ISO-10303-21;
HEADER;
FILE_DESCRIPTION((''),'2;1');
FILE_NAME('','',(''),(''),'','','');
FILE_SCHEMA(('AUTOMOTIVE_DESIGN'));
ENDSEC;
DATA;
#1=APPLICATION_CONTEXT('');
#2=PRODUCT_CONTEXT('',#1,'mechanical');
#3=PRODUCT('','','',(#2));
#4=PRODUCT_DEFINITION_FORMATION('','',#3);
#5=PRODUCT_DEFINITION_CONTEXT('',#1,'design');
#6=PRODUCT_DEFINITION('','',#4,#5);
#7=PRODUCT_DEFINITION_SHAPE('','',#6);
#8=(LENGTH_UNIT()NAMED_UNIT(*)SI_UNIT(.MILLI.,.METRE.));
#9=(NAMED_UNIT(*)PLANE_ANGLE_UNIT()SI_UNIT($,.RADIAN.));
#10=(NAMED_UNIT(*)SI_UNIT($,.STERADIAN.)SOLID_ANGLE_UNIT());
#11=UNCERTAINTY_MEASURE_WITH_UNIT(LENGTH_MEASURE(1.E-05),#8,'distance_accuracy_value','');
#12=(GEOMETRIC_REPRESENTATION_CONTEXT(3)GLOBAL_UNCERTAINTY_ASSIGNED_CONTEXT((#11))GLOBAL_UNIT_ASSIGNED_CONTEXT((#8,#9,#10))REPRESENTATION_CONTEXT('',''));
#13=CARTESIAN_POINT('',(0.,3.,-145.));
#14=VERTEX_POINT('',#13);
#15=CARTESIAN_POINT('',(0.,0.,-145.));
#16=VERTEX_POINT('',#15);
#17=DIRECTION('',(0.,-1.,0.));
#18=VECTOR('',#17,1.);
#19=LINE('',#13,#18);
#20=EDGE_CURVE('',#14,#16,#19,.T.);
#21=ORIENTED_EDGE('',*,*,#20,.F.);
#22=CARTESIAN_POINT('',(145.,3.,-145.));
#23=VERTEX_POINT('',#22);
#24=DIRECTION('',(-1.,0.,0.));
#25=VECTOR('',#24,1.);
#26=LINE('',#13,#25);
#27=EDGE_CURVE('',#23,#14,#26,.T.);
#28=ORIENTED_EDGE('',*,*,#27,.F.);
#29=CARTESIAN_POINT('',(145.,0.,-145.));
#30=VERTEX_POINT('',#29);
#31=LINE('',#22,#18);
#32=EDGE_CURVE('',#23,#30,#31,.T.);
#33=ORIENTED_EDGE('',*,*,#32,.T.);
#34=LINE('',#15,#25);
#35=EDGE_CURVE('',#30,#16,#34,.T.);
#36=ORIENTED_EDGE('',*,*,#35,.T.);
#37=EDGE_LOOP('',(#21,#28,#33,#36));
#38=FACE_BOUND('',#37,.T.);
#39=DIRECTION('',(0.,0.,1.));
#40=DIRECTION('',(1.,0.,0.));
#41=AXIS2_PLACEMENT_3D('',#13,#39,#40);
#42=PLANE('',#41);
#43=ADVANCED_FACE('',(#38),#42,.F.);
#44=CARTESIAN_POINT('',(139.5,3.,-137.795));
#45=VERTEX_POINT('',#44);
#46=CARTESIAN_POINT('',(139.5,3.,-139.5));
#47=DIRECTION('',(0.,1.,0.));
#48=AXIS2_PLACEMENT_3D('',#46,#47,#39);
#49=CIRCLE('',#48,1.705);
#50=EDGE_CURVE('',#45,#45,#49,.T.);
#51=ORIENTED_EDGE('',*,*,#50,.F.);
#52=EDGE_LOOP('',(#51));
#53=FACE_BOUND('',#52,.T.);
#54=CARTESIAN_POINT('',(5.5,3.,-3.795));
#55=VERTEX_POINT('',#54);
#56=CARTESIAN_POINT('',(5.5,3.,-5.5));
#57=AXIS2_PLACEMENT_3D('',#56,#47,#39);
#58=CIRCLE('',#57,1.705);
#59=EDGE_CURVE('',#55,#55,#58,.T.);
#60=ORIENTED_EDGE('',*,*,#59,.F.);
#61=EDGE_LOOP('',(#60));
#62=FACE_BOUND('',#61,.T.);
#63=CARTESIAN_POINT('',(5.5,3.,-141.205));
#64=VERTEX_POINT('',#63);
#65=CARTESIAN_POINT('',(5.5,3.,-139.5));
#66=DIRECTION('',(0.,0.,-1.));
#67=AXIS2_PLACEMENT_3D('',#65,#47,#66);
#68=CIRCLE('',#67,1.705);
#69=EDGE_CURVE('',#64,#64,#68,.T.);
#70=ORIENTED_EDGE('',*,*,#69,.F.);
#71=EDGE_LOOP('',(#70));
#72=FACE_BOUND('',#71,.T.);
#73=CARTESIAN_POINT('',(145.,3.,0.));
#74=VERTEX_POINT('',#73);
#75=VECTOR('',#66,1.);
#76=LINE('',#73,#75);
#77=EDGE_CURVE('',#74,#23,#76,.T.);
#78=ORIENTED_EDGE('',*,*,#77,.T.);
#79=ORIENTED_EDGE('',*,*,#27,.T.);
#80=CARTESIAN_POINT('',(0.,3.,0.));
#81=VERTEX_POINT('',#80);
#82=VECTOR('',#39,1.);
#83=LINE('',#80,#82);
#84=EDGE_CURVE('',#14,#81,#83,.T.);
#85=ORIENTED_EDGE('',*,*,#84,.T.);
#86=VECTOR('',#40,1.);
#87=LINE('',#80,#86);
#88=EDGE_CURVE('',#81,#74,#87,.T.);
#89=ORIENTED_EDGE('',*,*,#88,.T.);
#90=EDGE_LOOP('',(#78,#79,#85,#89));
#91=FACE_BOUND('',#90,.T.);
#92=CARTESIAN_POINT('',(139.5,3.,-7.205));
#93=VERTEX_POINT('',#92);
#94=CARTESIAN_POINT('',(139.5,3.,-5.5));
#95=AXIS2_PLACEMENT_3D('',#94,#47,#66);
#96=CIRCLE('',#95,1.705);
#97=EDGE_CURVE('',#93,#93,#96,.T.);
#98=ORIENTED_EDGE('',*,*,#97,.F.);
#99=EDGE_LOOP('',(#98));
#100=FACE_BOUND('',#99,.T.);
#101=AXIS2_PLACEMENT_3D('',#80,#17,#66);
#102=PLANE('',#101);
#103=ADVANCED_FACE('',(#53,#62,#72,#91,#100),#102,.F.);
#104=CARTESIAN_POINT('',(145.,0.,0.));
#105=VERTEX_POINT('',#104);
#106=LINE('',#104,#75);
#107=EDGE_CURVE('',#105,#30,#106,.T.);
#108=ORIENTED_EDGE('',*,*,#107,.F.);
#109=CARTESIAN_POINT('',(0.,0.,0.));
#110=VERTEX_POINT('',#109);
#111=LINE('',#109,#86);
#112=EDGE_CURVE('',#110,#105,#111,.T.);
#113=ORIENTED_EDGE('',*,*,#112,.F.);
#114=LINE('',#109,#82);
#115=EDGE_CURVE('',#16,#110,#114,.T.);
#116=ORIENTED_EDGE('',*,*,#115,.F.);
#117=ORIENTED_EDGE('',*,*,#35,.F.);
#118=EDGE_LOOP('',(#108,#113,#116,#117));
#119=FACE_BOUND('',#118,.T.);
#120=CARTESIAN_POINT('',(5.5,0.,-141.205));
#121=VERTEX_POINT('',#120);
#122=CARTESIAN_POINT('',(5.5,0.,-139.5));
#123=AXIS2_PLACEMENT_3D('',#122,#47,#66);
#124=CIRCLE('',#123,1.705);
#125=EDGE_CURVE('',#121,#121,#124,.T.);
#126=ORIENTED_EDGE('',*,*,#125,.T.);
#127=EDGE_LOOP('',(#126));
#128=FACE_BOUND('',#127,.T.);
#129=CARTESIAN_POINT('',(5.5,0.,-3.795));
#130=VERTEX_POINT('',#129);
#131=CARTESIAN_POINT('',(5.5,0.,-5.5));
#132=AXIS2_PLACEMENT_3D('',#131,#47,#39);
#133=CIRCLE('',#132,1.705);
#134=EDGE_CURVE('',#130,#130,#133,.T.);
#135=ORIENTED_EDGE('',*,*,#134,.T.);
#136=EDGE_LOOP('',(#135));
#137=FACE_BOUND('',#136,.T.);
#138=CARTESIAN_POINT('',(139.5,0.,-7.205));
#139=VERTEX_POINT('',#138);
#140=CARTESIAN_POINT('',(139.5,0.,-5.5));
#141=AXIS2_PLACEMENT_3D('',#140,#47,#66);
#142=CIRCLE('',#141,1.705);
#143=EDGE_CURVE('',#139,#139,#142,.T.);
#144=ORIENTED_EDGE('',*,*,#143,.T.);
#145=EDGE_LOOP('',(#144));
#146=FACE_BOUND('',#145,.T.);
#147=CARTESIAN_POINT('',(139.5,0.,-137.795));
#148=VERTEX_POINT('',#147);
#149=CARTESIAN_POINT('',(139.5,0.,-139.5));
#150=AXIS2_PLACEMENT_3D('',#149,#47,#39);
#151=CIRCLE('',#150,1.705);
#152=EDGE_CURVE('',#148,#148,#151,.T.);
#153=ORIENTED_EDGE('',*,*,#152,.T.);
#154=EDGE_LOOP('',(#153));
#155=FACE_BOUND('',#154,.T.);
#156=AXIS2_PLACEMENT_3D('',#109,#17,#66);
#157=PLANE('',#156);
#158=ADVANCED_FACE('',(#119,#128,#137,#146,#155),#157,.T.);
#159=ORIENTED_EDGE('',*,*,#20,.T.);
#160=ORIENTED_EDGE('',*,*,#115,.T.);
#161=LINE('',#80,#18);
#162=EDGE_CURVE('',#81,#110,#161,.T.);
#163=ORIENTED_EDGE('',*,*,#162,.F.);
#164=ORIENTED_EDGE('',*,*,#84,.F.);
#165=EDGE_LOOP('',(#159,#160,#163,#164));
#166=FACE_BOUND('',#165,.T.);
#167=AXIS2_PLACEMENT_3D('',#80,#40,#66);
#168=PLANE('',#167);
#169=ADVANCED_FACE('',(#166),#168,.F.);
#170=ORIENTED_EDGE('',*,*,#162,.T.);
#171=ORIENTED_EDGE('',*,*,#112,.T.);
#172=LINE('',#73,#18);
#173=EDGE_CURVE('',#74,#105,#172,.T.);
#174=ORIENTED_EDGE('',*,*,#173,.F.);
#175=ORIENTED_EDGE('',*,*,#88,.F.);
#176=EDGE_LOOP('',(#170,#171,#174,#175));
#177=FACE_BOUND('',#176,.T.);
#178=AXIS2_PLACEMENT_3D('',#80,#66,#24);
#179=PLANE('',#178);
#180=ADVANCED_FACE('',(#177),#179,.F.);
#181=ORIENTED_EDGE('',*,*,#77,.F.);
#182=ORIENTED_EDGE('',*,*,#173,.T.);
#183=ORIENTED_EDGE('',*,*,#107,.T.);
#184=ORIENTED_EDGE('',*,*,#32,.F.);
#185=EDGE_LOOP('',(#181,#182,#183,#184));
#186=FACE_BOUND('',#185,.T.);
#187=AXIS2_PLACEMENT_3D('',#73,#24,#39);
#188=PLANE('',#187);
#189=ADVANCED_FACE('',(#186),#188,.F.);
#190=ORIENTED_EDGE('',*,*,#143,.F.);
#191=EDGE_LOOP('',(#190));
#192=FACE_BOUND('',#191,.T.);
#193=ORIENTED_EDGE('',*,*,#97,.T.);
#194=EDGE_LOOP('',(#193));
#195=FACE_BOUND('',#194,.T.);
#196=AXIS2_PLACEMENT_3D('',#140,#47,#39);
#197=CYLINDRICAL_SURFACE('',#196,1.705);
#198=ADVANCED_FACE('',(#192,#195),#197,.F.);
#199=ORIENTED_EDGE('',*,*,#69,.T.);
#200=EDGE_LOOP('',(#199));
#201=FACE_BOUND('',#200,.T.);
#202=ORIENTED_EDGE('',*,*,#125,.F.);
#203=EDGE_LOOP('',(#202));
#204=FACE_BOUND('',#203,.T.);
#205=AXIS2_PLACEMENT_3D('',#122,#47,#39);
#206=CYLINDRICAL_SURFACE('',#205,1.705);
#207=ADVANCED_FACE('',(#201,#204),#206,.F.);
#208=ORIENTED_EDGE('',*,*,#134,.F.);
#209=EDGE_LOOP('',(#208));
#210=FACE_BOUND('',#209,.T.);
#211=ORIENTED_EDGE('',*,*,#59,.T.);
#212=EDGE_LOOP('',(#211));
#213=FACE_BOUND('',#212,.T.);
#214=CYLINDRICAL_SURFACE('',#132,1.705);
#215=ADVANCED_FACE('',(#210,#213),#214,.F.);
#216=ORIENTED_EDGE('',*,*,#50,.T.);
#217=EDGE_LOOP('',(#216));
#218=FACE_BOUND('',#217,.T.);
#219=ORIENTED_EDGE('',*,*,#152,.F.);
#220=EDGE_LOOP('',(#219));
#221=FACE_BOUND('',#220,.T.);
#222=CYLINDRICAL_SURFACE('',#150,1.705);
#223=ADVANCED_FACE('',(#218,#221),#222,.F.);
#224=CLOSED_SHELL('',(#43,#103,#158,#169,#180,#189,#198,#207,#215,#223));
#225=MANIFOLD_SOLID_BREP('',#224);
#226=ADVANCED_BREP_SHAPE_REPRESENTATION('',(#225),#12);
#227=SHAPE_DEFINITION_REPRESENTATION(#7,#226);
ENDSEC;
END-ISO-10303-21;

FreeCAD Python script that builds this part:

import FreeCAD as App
import Part
import Sketcher
from FreeCAD import Vector
Q = App.Units.Quantity

doc = App.newDocument("Part")
body = doc.addObject("PartDesign::Body", "Body")

sketch1 = body.newObject("Sketcher::SketchObject", "Sketch")
sketch1.AttachmentSupport = (doc.getObject("XZ_Plane"), [""])
sketch1.MapMode = "FlatFace"
sketch1.addGeometry([
    Part.LineSegment(Vector(0, -145, 0), Vector(0, 0, 0)),
    Part.LineSegment(Vector(0, 0, 0), Vector(145, 0, 0)),
    Part.LineSegment(Vector(145, 0, 0), Vector(145, -145, 0)),
    Part.LineSegment(Vector(145, -145, 0), Vector(0, -145, 0)),
], False)
sketch1.addConstraint([
    Sketcher.Constraint("Coincident", 0, 2, 1, 1),
    Sketcher.Constraint("Coincident", 1, 2, 2, 1),
    Sketcher.Constraint("Coincident", 2, 2, 3, 1),
    Sketcher.Constraint("Coincident", 3, 2, 0, 1),
    Sketcher.Constraint("Vertical", 0),
    Sketcher.Constraint("Horizontal", 1),
    Sketcher.Constraint("Vertical", 2),
    Sketcher.Constraint("Horizontal", 3),
    Sketcher.Constraint("Coincident", 0, 2, -1, 1),
    Sketcher.Constraint("Equal", 3, 0),
    Sketcher.Constraint("DistanceX", 1, 1, 1, 2, Q("145 mm")),
])
pad1 = body.newObject("PartDesign::Pad", "Pad")
pad1.Profile = sketch1
pad1.Length = 3
pad1.Reversed = True

sketch2 = body.newObject("Sketcher::SketchObject", "Sketch001")
sketch2.AttachmentSupport = (doc.getObject("XZ_Plane"), [""])
sketch2.MapMode = "FlatFace"
sketch2.AttachmentOffset = App.Placement(Vector(0, 0, -3), App.Rotation())
sketch2.addGeometry([
    Part.Circle(Vector(5.5, -5.5, 0), Vector(0, 0, 1), 1.7),
    Part.Circle(Vector(139.5, -5.5, 0), Vector(0, 0, 1), 1.7),
    Part.Circle(Vector(5.5, -139.5, 0), Vector(0, 0, 1), 1.7),
    Part.Circle(Vector(139.5, -139.5, 0), Vector(0, 0, 1), 1.7),
], False)
sketch2.addConstraint([
    Sketcher.Constraint("Equal", 0, 1),
    Sketcher.Constraint("Equal", 1, 2),
    Sketcher.Constraint("Equal", 2, 3),
    Sketcher.Constraint("Horizontal", 0, 3, 1, 3),
    Sketcher.Constraint("Horizontal", 2, 3, 3, 3),
    Sketcher.Constraint("Vertical", 0, 3, 2, 3),
    Sketcher.Constraint("Vertical", 1, 3, 3, 3),
    Sketcher.Constraint("Diameter", 0, Q("3.41 mm")),
    Sketcher.Constraint("DistanceX", 0, 3, 1, 3, Q("134 mm")),
    Sketcher.Constraint("DistanceY", 2, 3, 0, 3, Q("134 mm")),
    Sketcher.Constraint("DistanceX", -1, 1, 0, 3, Q("5.5 mm")),
    Sketcher.Constraint("DistanceY", 0, 3, -1, 1, Q("5.5 mm")),
])
pocket1 = body.newObject("PartDesign::Pocket", "Pocket")
pocket1.Profile = sketch2
pocket1.Type = "ThroughAll"
pocket1.Reversed = True

doc.recompute()
